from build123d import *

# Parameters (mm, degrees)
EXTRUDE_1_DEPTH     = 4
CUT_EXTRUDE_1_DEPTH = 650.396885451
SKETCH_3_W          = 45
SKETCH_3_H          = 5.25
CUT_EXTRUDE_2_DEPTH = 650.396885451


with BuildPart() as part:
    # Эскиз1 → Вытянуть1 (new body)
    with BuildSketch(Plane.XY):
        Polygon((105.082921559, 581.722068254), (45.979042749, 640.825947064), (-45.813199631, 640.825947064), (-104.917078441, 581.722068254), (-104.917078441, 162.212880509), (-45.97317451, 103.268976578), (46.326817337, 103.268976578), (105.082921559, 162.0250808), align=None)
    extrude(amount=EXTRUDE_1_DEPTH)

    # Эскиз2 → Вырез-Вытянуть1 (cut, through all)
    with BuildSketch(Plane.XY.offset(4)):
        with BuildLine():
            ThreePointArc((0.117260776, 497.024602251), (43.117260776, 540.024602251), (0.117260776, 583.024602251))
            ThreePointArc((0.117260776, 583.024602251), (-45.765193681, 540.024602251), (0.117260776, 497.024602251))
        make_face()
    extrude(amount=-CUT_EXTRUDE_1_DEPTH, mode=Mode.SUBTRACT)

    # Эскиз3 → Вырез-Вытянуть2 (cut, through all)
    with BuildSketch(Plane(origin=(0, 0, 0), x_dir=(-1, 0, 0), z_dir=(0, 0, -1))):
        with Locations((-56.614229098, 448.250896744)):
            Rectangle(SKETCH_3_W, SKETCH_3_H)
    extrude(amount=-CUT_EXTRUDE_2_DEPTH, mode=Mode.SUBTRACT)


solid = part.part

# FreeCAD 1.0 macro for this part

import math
import FreeCAD as App
import Part
import Sketcher
Q = App.Units.Quantity

doc = App.newDocument("Part")
body = doc.addObject("PartDesign::Body", "Body")

# Sketch on XY plane
sketch1 = doc.addObject("Sketcher::SketchObject", "Sketch")
body.addObject(sketch1)
sketch1.AttachmentSupport = (doc.XY_Plane, [""])
sketch1.MapMode = "FlatFace"
sketch1.addGeometry([
    Part.LineSegment(App.Vector(105, 582, 0), App.Vector(46, 641, 0)),  # 0
    Part.LineSegment(App.Vector(46, 641, 0), App.Vector(-46, 641, 0)),  # 1
    Part.LineSegment(App.Vector(-46, 641, 0), App.Vector(-105, 582, 0)),  # 2
    Part.LineSegment(App.Vector(-105, 582, 0), App.Vector(-105, 162, 0)),  # 3
    Part.LineSegment(App.Vector(-105, 162, 0), App.Vector(-46, 103, 0)),  # 4
    Part.LineSegment(App.Vector(-46, 103, 0), App.Vector(46, 103, 0)),  # 5
    Part.LineSegment(App.Vector(46, 103, 0), App.Vector(105, 162, 0)),  # 6
    Part.LineSegment(App.Vector(105, 162, 0), App.Vector(105, 582, 0)),  # 7
], False)
sketch1.addConstraint([
    Sketcher.Constraint("Coincident", 0, 2, 1, 1),
    Sketcher.Constraint("Coincident", 1, 2, 2, 1),
    Sketcher.Constraint("Coincident", 2, 2, 3, 1),
    Sketcher.Constraint("Coincident", 3, 2, 4, 1),
    Sketcher.Constraint("Coincident", 4, 2, 5, 1),
    Sketcher.Constraint("Coincident", 5, 2, 6, 1),
    Sketcher.Constraint("Coincident", 6, 2, 7, 1),
    Sketcher.Constraint("Coincident", 7, 2, 0, 1),
    Sketcher.Constraint("Horizontal", 1),
    Sketcher.Constraint("Vertical", 3),
    Sketcher.Constraint("Horizontal", 5),
    Sketcher.Constraint("Vertical", 7),
    Sketcher.Constraint("Perpendicular", 0, 2),
    Sketcher.Constraint("Perpendicular", 2, 4),
    Sketcher.Constraint("Perpendicular", 4, 6),
    Sketcher.Constraint("Horizontal", 2, 2, 7, 2),
    Sketcher.Constraint("Equal", 0, 2),
    Sketcher.Constraint("DistanceX", 3, 2, 6, 2, Q("210 mm")),
    Sketcher.Constraint("DistanceX", 5, 1, 5, 2, Q("92.299992 mm")),
    Sketcher.Constraint("DistanceX", 1, 2, -1, 1, Q("45.8132 mm")),
    Sketcher.Constraint("DistanceY", 6, 2, 3, 2, Q("0.1878 mm")),
    Sketcher.Constraint("DistanceX", 1, 2, 1, 1, Q("91.792242 mm")),
    Sketcher.Constraint("DistanceY", 3, 2, 3, 1, Q("419.509188 mm")),
    Sketcher.Constraint("DistanceY", -1, 1, 2, 2, Q("581.722068 mm")),
])
pad1 = doc.addObject("PartDesign::Pad", "Pad")
body.addObject(pad1)
pad1.Profile = sketch1
pad1.Length = 4

# Sketch on XY plane
sketch2 = doc.addObject("Sketcher::SketchObject", "Sketch001")
body.addObject(sketch2)
sketch2.AttachmentSupport = (doc.XY_Plane, [""])
sketch2.MapMode = "FlatFace"
sketch2.AttachmentOffset = App.Placement(App.Vector(0, 0, 4), App.Rotation())
sketch2.addGeometry([
    Part.ArcOfCircle(Part.Circle(App.Vector(0, 540, 0), App.Vector(0, 0, 1), 43), math.radians(-90), math.radians(90)),
    Part.ArcOfCircle(Part.Circle(App.Vector(-3, 540, 0), App.Vector(0, 0, 1), 43), math.radians(86), math.radians(274)),
], False)
sketch2.addConstraint([
    Sketcher.Constraint("Coincident", 0, 1, 1, 2),
    Sketcher.Constraint("Coincident", 1, 1, 0, 2),
    Sketcher.Constraint("Horizontal", 0, 3, 1, 3),
    Sketcher.Constraint("Radius", 0, Q("43 mm")),
    Sketcher.Constraint("Radius", 1, Q("43.090542 mm")),
    Sketcher.Constraint("DistanceX", -1, 1, 0, 3, Q("0.117261 mm")),
    Sketcher.Constraint("DistanceX", -1, 1, 0, 1, Q("0.117261 mm")),
    Sketcher.Constraint("DistanceY", -1, 1, 0, 3, Q("540.024602 mm")),
])
pocket1 = doc.addObject("PartDesign::Pocket", "Pocket")
body.addObject(pocket1)
pocket1.Profile = sketch2
pocket1.Type = "ThroughAll"

# Sketch on XY plane
sketch3 = doc.addObject("Sketcher::SketchObject", "Sketch002")
body.addObject(sketch3)
sketch3.AttachmentSupport = (doc.XY_Plane, [""])
sketch3.MapMode = "FlatFace"
sketch3.addGeometry([
    Part.LineSegment(App.Vector(79, 451, 0), App.Vector(79, 446, 0)),
    Part.LineSegment(App.Vector(79, 446, 0), App.Vector(34, 446, 0)),
    Part.LineSegment(App.Vector(34, 446, 0), App.Vector(34, 451, 0)),
    Part.LineSegment(App.Vector(34, 451, 0), App.Vector(79, 451, 0)),
], False)
sketch3.addConstraint([
    Sketcher.Constraint("Coincident", 0, 2, 1, 1),
    Sketcher.Constraint("Coincident", 1, 2, 2, 1),
    Sketcher.Constraint("Coincident", 2, 2, 3, 1),
    Sketcher.Constraint("Coincident", 3, 2, 0, 1),
    Sketcher.Constraint("Vertical", 0),
    Sketcher.Constraint("Horizontal", 1),
    Sketcher.Constraint("Vertical", 2),
    Sketcher.Constraint("Horizontal", 3),
    Sketcher.Constraint("DistanceX", 1, 2, 1, 1, Q("45 mm")),
    Sketcher.Constraint("DistanceY", 0, 2, 0, 1, Q("5.25 mm")),
    Sketcher.Constraint("DistanceX", -1, 1, 0, 2, Q("79.114229 mm")),
    Sketcher.Constraint("DistanceY", -1, 1, 0, 2, Q("445.625897 mm")),
])
pocket2 = doc.addObject("PartDesign::Pocket", "Pocket001")
body.addObject(pocket2)
pocket2.Profile = sketch3
pocket2.Type = "ThroughAll"
pocket2.Reversed = True

doc.recompute()
